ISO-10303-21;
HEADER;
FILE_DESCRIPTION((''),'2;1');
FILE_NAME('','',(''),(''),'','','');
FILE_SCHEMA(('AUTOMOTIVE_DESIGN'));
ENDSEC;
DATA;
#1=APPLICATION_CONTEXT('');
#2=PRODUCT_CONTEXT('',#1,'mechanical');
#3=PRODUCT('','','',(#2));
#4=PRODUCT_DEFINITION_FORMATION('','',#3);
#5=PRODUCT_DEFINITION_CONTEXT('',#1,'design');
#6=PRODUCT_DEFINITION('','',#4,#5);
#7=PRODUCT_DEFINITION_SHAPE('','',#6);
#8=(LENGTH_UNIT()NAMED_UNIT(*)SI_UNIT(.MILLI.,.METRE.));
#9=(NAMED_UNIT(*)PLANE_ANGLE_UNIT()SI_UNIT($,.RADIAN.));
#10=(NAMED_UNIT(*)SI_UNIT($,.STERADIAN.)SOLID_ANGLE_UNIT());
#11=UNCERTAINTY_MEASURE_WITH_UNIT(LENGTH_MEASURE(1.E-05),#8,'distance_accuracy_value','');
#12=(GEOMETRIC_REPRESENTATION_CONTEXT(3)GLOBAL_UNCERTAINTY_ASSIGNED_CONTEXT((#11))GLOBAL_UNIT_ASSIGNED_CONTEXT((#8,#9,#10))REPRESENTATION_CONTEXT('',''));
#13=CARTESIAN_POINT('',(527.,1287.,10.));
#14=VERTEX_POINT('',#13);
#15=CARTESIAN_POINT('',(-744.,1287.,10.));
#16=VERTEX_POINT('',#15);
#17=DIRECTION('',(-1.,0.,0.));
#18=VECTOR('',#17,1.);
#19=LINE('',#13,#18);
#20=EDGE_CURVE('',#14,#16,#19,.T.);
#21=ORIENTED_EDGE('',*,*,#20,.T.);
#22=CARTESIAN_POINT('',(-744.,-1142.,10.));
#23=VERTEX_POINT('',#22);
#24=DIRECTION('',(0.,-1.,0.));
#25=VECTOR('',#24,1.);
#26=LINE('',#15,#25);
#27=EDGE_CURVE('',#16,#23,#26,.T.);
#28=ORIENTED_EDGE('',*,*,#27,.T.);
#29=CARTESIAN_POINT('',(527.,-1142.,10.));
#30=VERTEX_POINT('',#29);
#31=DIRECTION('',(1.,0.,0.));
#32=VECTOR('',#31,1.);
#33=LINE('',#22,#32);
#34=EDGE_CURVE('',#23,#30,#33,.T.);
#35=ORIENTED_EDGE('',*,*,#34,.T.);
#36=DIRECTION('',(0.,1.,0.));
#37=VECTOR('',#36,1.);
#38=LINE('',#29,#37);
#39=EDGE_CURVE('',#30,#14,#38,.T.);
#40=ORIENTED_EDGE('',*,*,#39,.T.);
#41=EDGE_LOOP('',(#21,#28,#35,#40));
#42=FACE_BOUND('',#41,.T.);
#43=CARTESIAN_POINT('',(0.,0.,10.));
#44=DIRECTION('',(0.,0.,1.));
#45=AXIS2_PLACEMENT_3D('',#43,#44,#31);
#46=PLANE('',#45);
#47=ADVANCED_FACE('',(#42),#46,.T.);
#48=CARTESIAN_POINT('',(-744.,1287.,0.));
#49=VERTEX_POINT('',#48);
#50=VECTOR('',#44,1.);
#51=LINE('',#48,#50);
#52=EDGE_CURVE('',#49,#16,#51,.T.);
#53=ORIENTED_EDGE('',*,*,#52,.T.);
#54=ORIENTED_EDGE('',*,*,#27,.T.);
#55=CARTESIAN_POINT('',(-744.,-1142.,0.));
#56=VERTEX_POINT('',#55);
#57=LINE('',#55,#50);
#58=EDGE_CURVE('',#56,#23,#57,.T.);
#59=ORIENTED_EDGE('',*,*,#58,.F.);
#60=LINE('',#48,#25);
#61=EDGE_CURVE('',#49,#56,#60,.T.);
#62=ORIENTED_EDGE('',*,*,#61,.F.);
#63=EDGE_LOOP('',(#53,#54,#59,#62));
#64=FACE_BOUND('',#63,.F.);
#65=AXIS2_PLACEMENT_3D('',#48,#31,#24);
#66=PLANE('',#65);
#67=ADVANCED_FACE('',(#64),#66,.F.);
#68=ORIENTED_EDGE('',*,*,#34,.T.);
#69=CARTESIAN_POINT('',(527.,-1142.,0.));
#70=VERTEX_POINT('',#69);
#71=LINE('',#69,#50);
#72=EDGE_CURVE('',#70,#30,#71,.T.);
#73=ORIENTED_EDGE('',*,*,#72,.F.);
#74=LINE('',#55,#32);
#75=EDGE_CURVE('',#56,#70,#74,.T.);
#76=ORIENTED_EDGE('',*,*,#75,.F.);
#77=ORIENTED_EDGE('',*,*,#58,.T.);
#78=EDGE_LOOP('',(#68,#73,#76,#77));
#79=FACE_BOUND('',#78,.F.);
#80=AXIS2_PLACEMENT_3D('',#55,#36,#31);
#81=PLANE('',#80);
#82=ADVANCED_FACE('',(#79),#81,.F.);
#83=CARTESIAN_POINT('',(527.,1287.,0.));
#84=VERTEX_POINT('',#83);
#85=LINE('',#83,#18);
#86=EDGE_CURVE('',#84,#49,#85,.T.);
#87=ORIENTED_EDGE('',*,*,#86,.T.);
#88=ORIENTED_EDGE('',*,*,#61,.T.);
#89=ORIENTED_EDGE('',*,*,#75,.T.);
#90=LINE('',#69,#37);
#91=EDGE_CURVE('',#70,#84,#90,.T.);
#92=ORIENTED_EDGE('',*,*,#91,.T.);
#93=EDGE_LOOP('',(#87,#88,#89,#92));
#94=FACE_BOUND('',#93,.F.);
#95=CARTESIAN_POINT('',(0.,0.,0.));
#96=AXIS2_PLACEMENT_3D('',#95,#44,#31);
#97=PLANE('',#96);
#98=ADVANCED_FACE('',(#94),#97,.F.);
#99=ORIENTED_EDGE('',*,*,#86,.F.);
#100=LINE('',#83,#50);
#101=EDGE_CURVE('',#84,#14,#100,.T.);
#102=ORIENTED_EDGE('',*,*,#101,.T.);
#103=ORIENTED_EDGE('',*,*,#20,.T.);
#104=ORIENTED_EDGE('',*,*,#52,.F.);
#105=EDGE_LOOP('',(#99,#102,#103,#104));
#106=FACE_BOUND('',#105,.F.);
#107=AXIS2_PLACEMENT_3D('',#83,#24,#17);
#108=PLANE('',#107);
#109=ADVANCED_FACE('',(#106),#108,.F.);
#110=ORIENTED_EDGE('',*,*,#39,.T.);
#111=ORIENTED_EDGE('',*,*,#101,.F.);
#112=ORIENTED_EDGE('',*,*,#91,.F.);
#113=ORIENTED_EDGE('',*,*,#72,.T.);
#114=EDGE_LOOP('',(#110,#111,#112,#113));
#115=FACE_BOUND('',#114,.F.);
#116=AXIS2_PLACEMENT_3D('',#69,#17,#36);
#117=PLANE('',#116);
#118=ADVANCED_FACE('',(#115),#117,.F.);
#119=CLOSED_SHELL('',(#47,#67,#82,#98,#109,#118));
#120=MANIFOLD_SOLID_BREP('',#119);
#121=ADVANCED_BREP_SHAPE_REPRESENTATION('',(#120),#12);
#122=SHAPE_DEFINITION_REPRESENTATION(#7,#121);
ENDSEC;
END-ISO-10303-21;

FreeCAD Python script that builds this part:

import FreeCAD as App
import Part
import Sketcher

V = App.Vector
Q = App.Units.Quantity


def add_polygon(sketch, points):
    """Adds a closed chain of lines whose ends are joined by coincident constraints."""
    first, n = sketch.GeometryCount, len(points)
    for a, b in zip(points, points[1:] + points[:1]):
        sketch.addGeometry(Part.LineSegment(App.Vector(*a, 0), App.Vector(*b, 0)), False)
    for i in range(n):
        sketch.addConstraint(Sketcher.Constraint("Coincident", first + i, 2, first + (i + 1) % n, 1))

doc = App.newDocument("Part")
body = doc.addObject("PartDesign::Body", "Body")

sketch1 = body.newObject("Sketcher::SketchObject", "Sketch")
sketch1.AttachmentSupport = (doc.getObject("XY_Plane"), [""])
sketch1.MapMode = "FlatFace"
add_polygon(sketch1, [(527, -1142), (527, 1287), (-744, 1287), (-744, -1142)])
sketch1.addConstraint(Sketcher.Constraint("Vertical", 0))
sketch1.addConstraint(Sketcher.Constraint("Horizontal", 1))
sketch1.addConstraint(Sketcher.Constraint("Vertical", 2))
sketch1.addConstraint(Sketcher.Constraint("Horizontal", 3))
sketch1.addConstraint(Sketcher.Constraint("DistanceX", 1, 2, 1, 1, Q("1271 mm")))
sketch1.addConstraint(Sketcher.Constraint("DistanceY", 0, 1, 0, 2, Q("2429 mm")))
sketch1.addConstraint(Sketcher.Constraint("DistanceX", -1, 1, 0, 2, Q("527 mm")))
sketch1.addConstraint(Sketcher.Constraint("DistanceY", -1, 1, 0, 2, Q("1287 mm")))
pad1 = body.newObject("PartDesign::Pad", "Pad")
pad1.Profile = sketch1
pad1.Length = 10

doc.recompute()
